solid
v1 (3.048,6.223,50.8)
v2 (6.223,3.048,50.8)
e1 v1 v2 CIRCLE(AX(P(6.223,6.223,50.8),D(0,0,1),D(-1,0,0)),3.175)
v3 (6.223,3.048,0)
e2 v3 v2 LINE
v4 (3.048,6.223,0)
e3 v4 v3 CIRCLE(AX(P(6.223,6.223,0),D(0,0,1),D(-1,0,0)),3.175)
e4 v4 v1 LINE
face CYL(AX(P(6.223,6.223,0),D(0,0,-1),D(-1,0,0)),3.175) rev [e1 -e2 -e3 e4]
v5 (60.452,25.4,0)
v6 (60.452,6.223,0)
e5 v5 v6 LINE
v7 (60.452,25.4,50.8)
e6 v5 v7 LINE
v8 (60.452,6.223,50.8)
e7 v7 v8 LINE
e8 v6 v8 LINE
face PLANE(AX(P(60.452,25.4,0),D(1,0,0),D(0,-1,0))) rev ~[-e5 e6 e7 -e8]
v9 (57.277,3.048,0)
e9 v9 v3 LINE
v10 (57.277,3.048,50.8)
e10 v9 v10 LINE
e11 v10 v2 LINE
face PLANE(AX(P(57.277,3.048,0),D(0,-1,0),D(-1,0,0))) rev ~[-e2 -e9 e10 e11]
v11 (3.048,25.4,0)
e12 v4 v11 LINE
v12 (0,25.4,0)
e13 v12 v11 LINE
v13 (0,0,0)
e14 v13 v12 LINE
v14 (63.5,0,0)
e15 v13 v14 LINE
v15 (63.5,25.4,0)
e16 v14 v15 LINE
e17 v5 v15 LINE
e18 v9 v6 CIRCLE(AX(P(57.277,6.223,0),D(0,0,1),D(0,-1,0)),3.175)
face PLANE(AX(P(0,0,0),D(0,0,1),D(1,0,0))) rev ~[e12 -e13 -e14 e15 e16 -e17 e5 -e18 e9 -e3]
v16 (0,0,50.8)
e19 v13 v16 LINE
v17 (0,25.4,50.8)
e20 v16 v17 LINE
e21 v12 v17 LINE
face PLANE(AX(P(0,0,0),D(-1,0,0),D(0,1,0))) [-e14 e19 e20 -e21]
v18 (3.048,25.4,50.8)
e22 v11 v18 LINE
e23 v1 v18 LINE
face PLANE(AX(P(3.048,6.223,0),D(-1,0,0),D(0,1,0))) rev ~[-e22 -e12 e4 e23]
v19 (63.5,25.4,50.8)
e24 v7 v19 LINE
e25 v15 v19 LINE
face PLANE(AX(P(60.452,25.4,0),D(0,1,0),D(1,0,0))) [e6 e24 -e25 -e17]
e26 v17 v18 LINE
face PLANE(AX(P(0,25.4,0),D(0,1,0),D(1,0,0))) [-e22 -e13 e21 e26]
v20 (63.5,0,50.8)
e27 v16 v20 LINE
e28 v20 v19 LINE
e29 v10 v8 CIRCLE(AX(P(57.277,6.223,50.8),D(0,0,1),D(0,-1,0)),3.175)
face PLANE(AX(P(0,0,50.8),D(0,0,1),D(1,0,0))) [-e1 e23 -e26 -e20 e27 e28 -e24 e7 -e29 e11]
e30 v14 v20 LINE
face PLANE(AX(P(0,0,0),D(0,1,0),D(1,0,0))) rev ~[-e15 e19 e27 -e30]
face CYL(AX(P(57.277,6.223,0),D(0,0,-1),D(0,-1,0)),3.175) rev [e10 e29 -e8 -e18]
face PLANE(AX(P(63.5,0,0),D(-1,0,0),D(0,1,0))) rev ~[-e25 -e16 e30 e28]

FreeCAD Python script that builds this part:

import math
import FreeCAD as App
import Part
import Sketcher

V = App.Vector
Q = App.Units.Quantity

doc = App.newDocument("Part")
params = doc.addObject("Spreadsheet::Sheet", "Params")
for row, (alias, value) in enumerate([
    ("sketch1_height", "1 in"),
    ("sketch1_width", "2.5 in"),
    ("sketch1_radius", "0.125 in"),
    ("sketch1_width2", "0.12 in"),
    ("pad1_length", "2 in"),
], start=1):
    params.set(f"A{row}", alias)
    params.set(f"B{row}", "=" + value)
    params.setAlias(f"B{row}", alias)

body = doc.addObject("PartDesign::Body", "Body")

# Sketch on XY plane
sketch1 = body.newObject("Sketcher::SketchObject", "Sketch")
sketch1.AttachmentSupport = (doc.getObject("XY_Plane"), [""])
sketch1.MapMode = "FlatFace"
sketch1.addGeometry([
    Part.LineSegment(V(0, 25.4, 0), V(0, 0, 0)),  # 0
    Part.LineSegment(V(0, 0, 0), V(63.5, 0, 0)),  # 1
    Part.LineSegment(V(63.5, 0, 0), V(63.5, 25.4, 0)),  # 2
    Part.LineSegment(V(63.5, 25.4, 0), V(60.452, 25.4, 0)),  # 3
    Part.LineSegment(V(60.452, 25.4, 0), V(60.452, 6.223, 0)),  # 4
    Part.ArcOfCircle(Part.Circle(V(57.277, 6.223, 0), V(0, 0, 1), 3.175), math.radians(-90), math.radians(0)),  # 5
    Part.LineSegment(V(57.277, 3.048, 0), V(6.223, 3.048, 0)),  # 6
    Part.ArcOfCircle(Part.Circle(V(6.223, 6.223, 0), V(0, 0, 1), 3.175), math.radians(180), math.radians(270)),  # 7
    Part.LineSegment(V(3.048, 6.223, 0), V(3.048, 25.4, 0)),  # 8
    Part.LineSegment(V(3.048, 25.4, 0), V(0, 25.4, 0)),  # 9
], False)
sketch1.addConstraint([
    Sketcher.Constraint("Coincident", 0, 2, 1, 1),
    Sketcher.Constraint("Coincident", 1, 2, 2, 1),
    Sketcher.Constraint("Coincident", 2, 2, 3, 1),
    Sketcher.Constraint("Coincident", 3, 2, 4, 1),
    Sketcher.Constraint("Tangent", 4, 2, 5, 2),
    Sketcher.Constraint("Tangent", 5, 1, 6, 1),
    Sketcher.Constraint("Tangent", 6, 2, 7, 2),
    Sketcher.Constraint("Tangent", 7, 1, 8, 1),
    Sketcher.Constraint("Coincident", 8, 2, 9, 1),
    Sketcher.Constraint("Coincident", 9, 2, 0, 1),
    Sketcher.Constraint("Vertical", 0),
    Sketcher.Constraint("Horizontal", 1),
    Sketcher.Constraint("Vertical", 2),
    Sketcher.Constraint("Horizontal", 3),
    Sketcher.Constraint("Vertical", 4),
    Sketcher.Constraint("Horizontal", 6),
    Sketcher.Constraint("Vertical", 8),
    Sketcher.Constraint("Horizontal", 9),
    Sketcher.Constraint("Coincident", 0, 2, -1, 1),
    Sketcher.Constraint("Equal", 5, 7),
    Sketcher.Constraint("Horizontal", 3, 2, 8, 2),
    Sketcher.Constraint("Equal", 3, 9),
    Sketcher.Constraint("DistanceY", 0, 2, 0, 1, Q("1 in")),
    Sketcher.Constraint("DistanceX", 1, 1, 1, 2, Q("2.5 in")),
    Sketcher.Constraint("Radius", 5, Q("0.125 in")),
    Sketcher.Constraint("DistanceX", 3, 2, 3, 1, Q("0.12 in")),
    Sketcher.Constraint("DistanceY", -1, 1, 5, 1, Q("0.12 in")),
])
sketch1.setExpression("Constraints[22]", "Params.sketch1_height")
sketch1.setExpression("Constraints[23]", "Params.sketch1_width")
sketch1.setExpression("Constraints[24]", "Params.sketch1_radius")
sketch1.setExpression("Constraints[25]", "Params.sketch1_width2")
pad1 = body.newObject("PartDesign::Pad", "Pad")
pad1.Profile = sketch1
pad1.setExpression("Length", "Params.pad1_length")

doc.recompute()
